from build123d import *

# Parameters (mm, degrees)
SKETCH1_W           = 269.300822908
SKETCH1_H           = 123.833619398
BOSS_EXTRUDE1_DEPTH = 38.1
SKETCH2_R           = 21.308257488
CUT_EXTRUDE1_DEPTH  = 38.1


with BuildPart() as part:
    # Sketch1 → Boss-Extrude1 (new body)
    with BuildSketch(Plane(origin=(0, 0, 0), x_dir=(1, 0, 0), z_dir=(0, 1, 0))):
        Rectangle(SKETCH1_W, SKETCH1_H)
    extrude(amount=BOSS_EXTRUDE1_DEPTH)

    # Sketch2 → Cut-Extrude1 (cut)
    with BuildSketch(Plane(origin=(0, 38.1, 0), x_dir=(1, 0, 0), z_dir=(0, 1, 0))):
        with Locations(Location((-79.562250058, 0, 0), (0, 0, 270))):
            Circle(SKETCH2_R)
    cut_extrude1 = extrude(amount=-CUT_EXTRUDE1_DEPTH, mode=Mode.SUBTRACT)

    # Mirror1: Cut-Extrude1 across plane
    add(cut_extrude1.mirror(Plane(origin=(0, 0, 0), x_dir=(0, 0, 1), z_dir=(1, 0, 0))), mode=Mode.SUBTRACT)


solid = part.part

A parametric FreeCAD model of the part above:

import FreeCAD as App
import Part
import Sketcher
from FreeCAD import Vector
Q = App.Units.Quantity


def add_polygon(sketch, points):
    """Adds a closed chain of lines whose ends are joined by coincident constraints."""
    first, n = sketch.GeometryCount, len(points)
    for a, b in zip(points, points[1:] + points[:1]):
        sketch.addGeometry(Part.LineSegment(App.Vector(*a, 0), App.Vector(*b, 0)), False)
    for i in range(n):
        sketch.addConstraint(Sketcher.Constraint("Coincident", first + i, 2, first + (i + 1) % n, 1))

doc = App.newDocument("Part")
body = doc.addObject("PartDesign::Body", "Body")

# Sketch on XZ plane
sketch1 = body.newObject("Sketcher::SketchObject", "Sketch")
sketch1.AttachmentSupport = (doc.getObject("XZ_Plane"), [""])
sketch1.MapMode = "FlatFace"
add_polygon(sketch1, [(-135, -62), (-135, 62), (135, 62), (135, -62)])  # lines 0-3
sketch1.addConstraint([
    Sketcher.Constraint("Vertical", 0),
    Sketcher.Constraint("Horizontal", 1),
    Sketcher.Constraint("Vertical", 2),
    Sketcher.Constraint("Horizontal", 3),
    Sketcher.Constraint("Symmetric", 0, 2, 2, 2, -1, 1),
    Sketcher.Constraint("DistanceY", 0, 1, 0, 2, 123.833619),
    Sketcher.Constraint("DistanceX", 1, 1, 1, 2, 269.300823),
])
pad1 = body.newObject("PartDesign::Pad", "Pad")
pad1.Profile = sketch1
pad1.Length = Q("1.5 in")
pad1.Reversed = True

# Sketch on XZ plane
sketch2 = body.newObject("Sketcher::SketchObject", "Sketch001")
sketch2.AttachmentSupport = (doc.getObject("XZ_Plane"), [""])
sketch2.MapMode = "FlatFace"
sketch2.AttachmentOffset = App.Placement(Vector(0, 0, -1.5 * 25.4), App.Rotation())
sketch2.addGeometry(Part.Circle(Vector(-80, 0, 0), Vector(0, 0, 1), 21), False)
sketch2.addConstraint([
    Sketcher.Constraint("PointOnObject", 0, 3, -1),
    Sketcher.Constraint("Diameter", 0, 42.616515),
    Sketcher.Constraint("DistanceX", 0, 3, -1, 1, 79.56225),
])
pocket1 = body.newObject("PartDesign::Pocket", "Pocket")
pocket1.Profile = sketch2
pocket1.Length = Q("1.5 in")
pocket1.Reversed = True
doc.recompute()

mirrored = body.newObject("PartDesign::Mirrored", "Mirrored")
mirrored.Originals = [pocket1]
mirrored.MirrorPlane = (doc.getObject("YZ_Plane"), [""])
body.Tip = mirrored

doc.recompute()
